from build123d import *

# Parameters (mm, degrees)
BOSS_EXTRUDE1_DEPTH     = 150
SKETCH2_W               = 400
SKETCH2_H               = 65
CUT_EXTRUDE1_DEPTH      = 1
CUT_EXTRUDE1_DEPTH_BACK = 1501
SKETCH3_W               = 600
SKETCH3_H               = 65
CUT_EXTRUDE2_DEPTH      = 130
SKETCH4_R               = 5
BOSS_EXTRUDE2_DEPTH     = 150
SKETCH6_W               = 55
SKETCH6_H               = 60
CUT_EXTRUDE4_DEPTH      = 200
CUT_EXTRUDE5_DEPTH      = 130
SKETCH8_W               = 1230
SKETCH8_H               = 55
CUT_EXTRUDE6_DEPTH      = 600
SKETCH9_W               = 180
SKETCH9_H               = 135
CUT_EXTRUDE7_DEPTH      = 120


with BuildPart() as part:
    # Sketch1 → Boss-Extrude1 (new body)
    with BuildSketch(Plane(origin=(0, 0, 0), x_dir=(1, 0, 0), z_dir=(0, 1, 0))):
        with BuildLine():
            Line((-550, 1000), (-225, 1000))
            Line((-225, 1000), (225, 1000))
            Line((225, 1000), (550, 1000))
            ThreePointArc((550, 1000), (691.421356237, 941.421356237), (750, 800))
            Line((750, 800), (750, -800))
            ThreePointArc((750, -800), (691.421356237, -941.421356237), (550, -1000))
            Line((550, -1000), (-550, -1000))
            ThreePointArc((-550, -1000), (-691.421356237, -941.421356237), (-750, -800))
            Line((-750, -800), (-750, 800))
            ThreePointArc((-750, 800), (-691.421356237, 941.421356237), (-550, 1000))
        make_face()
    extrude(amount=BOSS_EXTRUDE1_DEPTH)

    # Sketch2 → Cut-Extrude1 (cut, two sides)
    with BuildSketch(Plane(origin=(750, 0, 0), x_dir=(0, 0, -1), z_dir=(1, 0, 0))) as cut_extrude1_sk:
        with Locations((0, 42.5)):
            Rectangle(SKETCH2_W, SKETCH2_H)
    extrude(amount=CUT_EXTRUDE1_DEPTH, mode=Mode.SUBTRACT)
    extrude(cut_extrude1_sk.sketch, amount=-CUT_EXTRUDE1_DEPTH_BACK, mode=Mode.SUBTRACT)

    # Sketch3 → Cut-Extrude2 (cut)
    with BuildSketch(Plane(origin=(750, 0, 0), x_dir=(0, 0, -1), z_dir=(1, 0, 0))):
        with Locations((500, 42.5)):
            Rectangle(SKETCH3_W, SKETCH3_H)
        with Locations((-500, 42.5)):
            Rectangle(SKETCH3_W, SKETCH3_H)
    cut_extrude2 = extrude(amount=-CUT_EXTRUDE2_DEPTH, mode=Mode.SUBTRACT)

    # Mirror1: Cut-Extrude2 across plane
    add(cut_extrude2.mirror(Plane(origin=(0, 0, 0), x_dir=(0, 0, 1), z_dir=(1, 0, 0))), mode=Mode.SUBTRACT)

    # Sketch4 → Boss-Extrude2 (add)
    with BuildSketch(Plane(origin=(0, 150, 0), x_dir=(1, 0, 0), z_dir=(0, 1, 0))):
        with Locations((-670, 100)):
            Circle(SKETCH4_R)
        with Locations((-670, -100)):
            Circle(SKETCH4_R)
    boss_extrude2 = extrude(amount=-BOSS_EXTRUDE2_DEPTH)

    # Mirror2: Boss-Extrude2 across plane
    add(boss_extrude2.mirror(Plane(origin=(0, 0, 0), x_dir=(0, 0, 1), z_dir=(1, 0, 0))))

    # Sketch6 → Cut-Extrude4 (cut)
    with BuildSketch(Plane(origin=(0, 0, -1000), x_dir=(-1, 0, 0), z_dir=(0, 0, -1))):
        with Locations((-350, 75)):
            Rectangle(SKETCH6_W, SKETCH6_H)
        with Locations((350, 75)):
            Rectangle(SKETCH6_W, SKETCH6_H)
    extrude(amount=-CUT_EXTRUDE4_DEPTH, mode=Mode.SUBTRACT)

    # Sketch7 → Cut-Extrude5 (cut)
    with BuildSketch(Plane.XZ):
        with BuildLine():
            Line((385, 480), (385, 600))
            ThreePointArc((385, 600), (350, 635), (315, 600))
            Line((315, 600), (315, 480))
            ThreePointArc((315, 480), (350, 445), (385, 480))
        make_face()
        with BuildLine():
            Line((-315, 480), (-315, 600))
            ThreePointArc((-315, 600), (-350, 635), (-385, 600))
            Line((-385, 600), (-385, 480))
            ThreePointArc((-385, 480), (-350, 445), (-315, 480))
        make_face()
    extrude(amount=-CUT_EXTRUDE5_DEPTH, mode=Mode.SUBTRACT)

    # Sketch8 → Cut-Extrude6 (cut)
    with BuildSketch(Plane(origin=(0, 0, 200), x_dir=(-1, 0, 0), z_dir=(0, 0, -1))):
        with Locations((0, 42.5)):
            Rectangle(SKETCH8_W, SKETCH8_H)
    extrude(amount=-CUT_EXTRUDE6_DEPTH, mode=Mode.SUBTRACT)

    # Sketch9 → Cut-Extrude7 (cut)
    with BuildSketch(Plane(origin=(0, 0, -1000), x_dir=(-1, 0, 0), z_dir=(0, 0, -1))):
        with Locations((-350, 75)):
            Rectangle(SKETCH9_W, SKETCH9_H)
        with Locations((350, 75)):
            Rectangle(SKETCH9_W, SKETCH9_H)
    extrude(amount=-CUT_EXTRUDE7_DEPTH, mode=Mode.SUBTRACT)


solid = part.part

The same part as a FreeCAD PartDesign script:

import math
import FreeCAD as App
import Part
import Sketcher

V = App.Vector


def add_polygon(sketch, points):
    """Adds a closed chain of lines whose ends are joined by coincident constraints."""
    first, n = sketch.GeometryCount, len(points)
    for a, b in zip(points, points[1:] + points[:1]):
        sketch.addGeometry(Part.LineSegment(App.Vector(*a, 0), App.Vector(*b, 0)), False)
    for i in range(n):
        sketch.addConstraint(Sketcher.Constraint("Coincident", first + i, 2, first + (i + 1) % n, 1))

doc = App.newDocument("Part")
body = doc.addObject("PartDesign::Body", "Body")

# Sketch on XZ plane
sketch1 = body.newObject("Sketcher::SketchObject", "Sketch")
sketch1.AttachmentSupport = (doc.getObject("XZ_Plane"), [""])
sketch1.MapMode = "FlatFace"
sketch1.addGeometry(Part.LineSegment(V(550, -1000, 0), V(-550, -1000, 0)), False)
sketch1.addGeometry(Part.ArcOfCircle(Part.Circle(V(-550, -800, 0), V(0, 0, 1), 200), math.radians(-180), math.radians(-90)), False)
sketch1.addGeometry(Part.LineSegment(V(-750, -800, 0), V(-750, 800, 0)), False)
sketch1.addGeometry(Part.ArcOfCircle(Part.Circle(V(-550, 800, 0), V(0, 0, 1), 200), math.radians(90), math.radians(180)), False)
sketch1.addGeometry(Part.LineSegment(V(-550, 1000, 0), V(550, 1000, 0)), False)
sketch1.addGeometry(Part.ArcOfCircle(Part.Circle(V(550, 800, 0), V(0, 0, 1), 200), math.radians(0), math.radians(90)), False)
sketch1.addGeometry(Part.LineSegment(V(750, 800, 0), V(750, -800, 0)), False)
sketch1.addGeometry(Part.ArcOfCircle(Part.Circle(V(550, -800, 0), V(0, 0, 1), 200), math.radians(-90), math.radians(0)), False)
sketch1.addConstraint(Sketcher.Constraint("Tangent", 0, 2, 1, 2))
sketch1.addConstraint(Sketcher.Constraint("Tangent", 1, 1, 2, 1))
sketch1.addConstraint(Sketcher.Constraint("Tangent", 2, 2, 3, 2))
sketch1.addConstraint(Sketcher.Constraint("Tangent", 3, 1, 4, 1))
sketch1.addConstraint(Sketcher.Constraint("Tangent", 4, 2, 5, 2))
sketch1.addConstraint(Sketcher.Constraint("Tangent", 5, 1, 6, 1))
sketch1.addConstraint(Sketcher.Constraint("Tangent", 6, 2, 7, 2))
sketch1.addConstraint(Sketcher.Constraint("Tangent", 7, 1, 0, 1))
sketch1.addConstraint(Sketcher.Constraint("Horizontal", 0))
sketch1.addConstraint(Sketcher.Constraint("Vertical", 2))
sketch1.addConstraint(Sketcher.Constraint("Horizontal", 4))
sketch1.addConstraint(Sketcher.Constraint("Vertical", 6))
sketch1.addConstraint(Sketcher.Constraint("Equal", 1, 3))
sketch1.addConstraint(Sketcher.Constraint("Equal", 3, 5))
sketch1.addConstraint(Sketcher.Constraint("Equal", 5, 7))
sketch1.addConstraint(Sketcher.Constraint("Symmetric", 1, 3, 5, 3, -1, 1))
sketch1.addConstraint(Sketcher.Constraint("Radius", 1, 200.0))
sketch1.addConstraint(Sketcher.Constraint("DistanceX", 0, 2, 0, 1, 1100.0))
sketch1.addConstraint(Sketcher.Constraint("DistanceY", 2, 1, 2, 2, 1600.0))
pad1 = body.newObject("PartDesign::Pad", "Pad")
pad1.Profile = sketch1
pad1.Length = 150
pad1.Reversed = True

# Sketch on YZ plane
sketch2 = body.newObject("Sketcher::SketchObject", "Sketch001")
sketch2.AttachmentSupport = (doc.getObject("YZ_Plane"), [""])
sketch2.MapMode = "FlatFace"
sketch2.AttachmentOffset = App.Placement(V(0, 0, 750), App.Rotation())
add_polygon(sketch2, [(75, 200), (10, 200), (10, -200), (75, -200)])  # lines 0-3
sketch2.addConstraint(Sketcher.Constraint("Horizontal", 0))
sketch2.addConstraint(Sketcher.Constraint("Vertical", 1))
sketch2.addConstraint(Sketcher.Constraint("Horizontal", 2))
sketch2.addConstraint(Sketcher.Constraint("Vertical", 3))
sketch2.addConstraint(Sketcher.Constraint("DistanceX", 0, 2, 0, 1, 65.0))
sketch2.addConstraint(Sketcher.Constraint("DistanceY", 1, 2, 1, 1, 400.0))
sketch2.addConstraint(Sketcher.Constraint("DistanceX", -1, 1, 0, 2, 10.0))
sketch2.addConstraint(Sketcher.Constraint("DistanceY", -1, 1, 0, 2, 200.0))
pocket1 = body.newObject("PartDesign::Pocket", "Pocket")
pocket1.Profile = sketch2
pocket1.Type = "ThroughAll"
pocket1.Midplane = True

# Sketch on YZ plane
sketch3 = body.newObject("Sketcher::SketchObject", "Sketch002")
sketch3.AttachmentSupport = (doc.getObject("YZ_Plane"), [""])
sketch3.MapMode = "FlatFace"
sketch3.AttachmentOffset = App.Placement(V(0, 0, 750), App.Rotation())
add_polygon(sketch3, [(75, -200), (10, -200), (10, -800), (75, -800)])  # lines 0-3
add_polygon(sketch3, [(75, 800), (10, 800), (10, 200), (75, 200)])  # lines 4-7
sketch3.addConstraint(Sketcher.Constraint("Horizontal", 0))
sketch3.addConstraint(Sketcher.Constraint("Vertical", 1))
sketch3.addConstraint(Sketcher.Constraint("Horizontal", 2))
sketch3.addConstraint(Sketcher.Constraint("Vertical", 3))
sketch3.addConstraint(Sketcher.Constraint("Horizontal", 4))
sketch3.addConstraint(Sketcher.Constraint("Vertical", 5))
sketch3.addConstraint(Sketcher.Constraint("Horizontal", 6))
sketch3.addConstraint(Sketcher.Constraint("Vertical", 7))
sketch3.addConstraint(Sketcher.Constraint("Symmetric", 1, 2, 4, 2, -1))
sketch3.addConstraint(Sketcher.Constraint("Symmetric", 3, 2, 6, 2, -1))
sketch3.addConstraint(Sketcher.Constraint("DistanceX", 0, 2, 0, 1, 65.0))
sketch3.addConstraint(Sketcher.Constraint("DistanceY", 1, 2, 1, 1, 600.0))
sketch3.addConstraint(Sketcher.Constraint("DistanceX", -1, 1, 0, 2, 10.0))
sketch3.addConstraint(Sketcher.Constraint("DistanceY", 0, 2, -1, 1, 200.0))
pocket2 = body.newObject("PartDesign::Pocket", "Pocket001")
pocket2.Profile = sketch3
pocket2.Length = 130
doc.recompute()

mirrored = body.newObject("PartDesign::Mirrored", "Mirrored")
mirrored.Originals = [pocket2]
mirrored.MirrorPlane = (doc.getObject("YZ_Plane"), [""])
body.Tip = mirrored

# Sketch on XZ plane
sketch4 = body.newObject("Sketcher::SketchObject", "Sketch003")
sketch4.AttachmentSupport = (doc.getObject("XZ_Plane"), [""])
sketch4.MapMode = "FlatFace"
sketch4.AttachmentOffset = App.Placement(V(0, 0, -150), App.Rotation())
sketch4.addGeometry(Part.Circle(V(-670, -100, 0), V(0, 0, 1), 5), False)
sketch4.addGeometry(Part.Circle(V(-670, 100, 0), V(0, 0, 1), 5), False)
sketch4.addConstraint(Sketcher.Constraint("Equal", 0, 1))
sketch4.addConstraint(Sketcher.Constraint("Symmetric", 0, 3, 1, 3, -1))
sketch4.addConstraint(Sketcher.Constraint("Diameter", 0, 10.0))
sketch4.addConstraint(Sketcher.Constraint("DistanceX", 0, 3, -1, 1, 670.0))
sketch4.addConstraint(Sketcher.Constraint("DistanceY", 0, 3, -1, 1, 100.0))
pad2 = body.newObject("PartDesign::Pad", "Pad001")
pad2.Profile = sketch4
pad2.Length = 150
doc.recompute()

mirrored2 = body.newObject("PartDesign::Mirrored", "Mirrored001")
mirrored2.Originals = [pad2]
mirrored2.MirrorPlane = (doc.getObject("YZ_Plane"), [""])
body.Tip = mirrored2

# Sketch on XY plane
sketch5 = body.newObject("Sketcher::SketchObject", "Sketch004")
sketch5.AttachmentSupport = (doc.getObject("XY_Plane"), [""])
sketch5.MapMode = "FlatFace"
sketch5.AttachmentOffset = App.Placement(V(0, 0, -1000), App.Rotation())
add_polygon(sketch5, [(378, 105), (378, 45), (322, 45), (322, 105)])  # lines 0-3
add_polygon(sketch5, [(-322, 105), (-322, 45), (-378, 45), (-378, 105)])  # lines 4-7
sketch5.addConstraint(Sketcher.Constraint("Vertical", 0))
sketch5.addConstraint(Sketcher.Constraint("Horizontal", 1))
sketch5.addConstraint(Sketcher.Constraint("Vertical", 2))
sketch5.addConstraint(Sketcher.Constraint("Horizontal", 3))
sketch5.addConstraint(Sketcher.Constraint("Vertical", 4))
sketch5.addConstraint(Sketcher.Constraint("Horizontal", 5))
sketch5.addConstraint(Sketcher.Constraint("Vertical", 6))
sketch5.addConstraint(Sketcher.Constraint("Horizontal", 7))
sketch5.addConstraint(Sketcher.Constraint("Symmetric", 1, 2, 4, 2, -2))
sketch5.addConstraint(Sketcher.Constraint("Symmetric", 3, 2, 6, 2, -2))
sketch5.addConstraint(Sketcher.Constraint("DistanceX", 1, 2, 1, 1, 55.0))
sketch5.addConstraint(Sketcher.Constraint("DistanceY", 0, 2, 0, 1, 60.0))
sketch5.addConstraint(Sketcher.Constraint("DistanceY", -1, 1, 0, 2, 45.0))
sketch5.addConstraint(Sketcher.Constraint("DistanceX", 4, 2, 1, 2, 645.0))
pocket3 = body.newObject("PartDesign::Pocket", "Pocket002")
pocket3.Profile = sketch5
pocket3.Length = 200
pocket3.Reversed = True

# Sketch on XZ plane
sketch6 = body.newObject("Sketcher::SketchObject", "Sketch005")
sketch6.AttachmentSupport = (doc.getObject("XZ_Plane"), [""])
sketch6.MapMode = "FlatFace"
sketch6.addGeometry(Part.LineSegment(V(385, 480, 0), V(385, 600, 0)), False)
sketch6.addGeometry(Part.ArcOfCircle(Part.Circle(V(350, 600, 0), V(0, 0, 1), 35), math.radians(0), math.radians(180)), False)
sketch6.addGeometry(Part.LineSegment(V(315, 600, 0), V(315, 480, 0)), False)
sketch6.addGeometry(Part.ArcOfCircle(Part.Circle(V(350, 480, 0), V(0, 0, 1), 35), math.radians(180), math.radians(360)), False)
sketch6.addGeometry(Part.LineSegment(V(-315, 480, 0), V(-315, 600, 0)), False)
sketch6.addGeometry(Part.ArcOfCircle(Part.Circle(V(-350, 600, 0), V(0, 0, 1), 35), math.radians(0), math.radians(180)), False)
sketch6.addGeometry(Part.LineSegment(V(-385, 600, 0), V(-385, 480, 0)), False)
sketch6.addGeometry(Part.ArcOfCircle(Part.Circle(V(-350, 480, 0), V(0, 0, 1), 35), math.radians(180), math.radians(360)), False)
sketch6.addConstraint(Sketcher.Constraint("Tangent", 0, 2, 1, 1))
sketch6.addConstraint(Sketcher.Constraint("Tangent", 1, 2, 2, 1))
sketch6.addConstraint(Sketcher.Constraint("Tangent", 2, 2, 3, 1))
sketch6.addConstraint(Sketcher.Constraint("Tangent", 3, 2, 0, 1))
sketch6.addConstraint(Sketcher.Constraint("Tangent", 4, 2, 5, 1))
sketch6.addConstraint(Sketcher.Constraint("Tangent", 5, 2, 6, 1))
sketch6.addConstraint(Sketcher.Constraint("Tangent", 6, 2, 7, 1))
sketch6.addConstraint(Sketcher.Constraint("Tangent", 7, 2, 4, 1))
sketch6.addConstraint(Sketcher.Constraint("Vertical", 0))
sketch6.addConstraint(Sketcher.Constraint("Vertical", 2))
sketch6.addConstraint(Sketcher.Constraint("Vertical", 4))
sketch6.addConstraint(Sketcher.Constraint("Vertical", 6))
sketch6.addConstraint(Sketcher.Constraint("Equal", 3, 5))
sketch6.addConstraint(Sketcher.Constraint("Symmetric", 1, 3, 5, 3, -2))
sketch6.addConstraint(Sketcher.Constraint("Horizontal", 3, 3, 7, 3))
sketch6.addConstraint(Sketcher.Constraint("Radius", 1, 35.0))
sketch6.addConstraint(Sketcher.Constraint("DistanceY", 0, 1, 0, 2, 120.0))
sketch6.addConstraint(Sketcher.Constraint("DistanceX", -1, 1, 1, 3, 350.0))
sketch6.addConstraint(Sketcher.Constraint("DistanceY", -1, 1, 1, 3, 600.0))
pocket4 = body.newObject("PartDesign::Pocket", "Pocket003")
pocket4.Profile = sketch6
pocket4.Length = 130

# Sketch on XY plane
sketch7 = body.newObject("Sketcher::SketchObject", "Sketch006")
sketch7.AttachmentSupport = (doc.getObject("XY_Plane"), [""])
sketch7.MapMode = "FlatFace"
sketch7.AttachmentOffset = App.Placement(V(0, 0, 200), App.Rotation())
add_polygon(sketch7, [(615, 70), (615, 15), (-615, 15), (-615, 70)])  # lines 0-3
sketch7.addConstraint(Sketcher.Constraint("Vertical", 0))
sketch7.addConstraint(Sketcher.Constraint("Horizontal", 1))
sketch7.addConstraint(Sketcher.Constraint("Vertical", 2))
sketch7.addConstraint(Sketcher.Constraint("Horizontal", 3))
sketch7.addConstraint(Sketcher.Constraint("DistanceX", 1, 2, 1, 1, 1230.0))
sketch7.addConstraint(Sketcher.Constraint("DistanceY", 0, 2, 0, 1, 55.0))
sketch7.addConstraint(Sketcher.Constraint("DistanceX", -1, 1, 0, 2, 615.0))
sketch7.addConstraint(Sketcher.Constraint("DistanceY", -1, 1, 0, 2, 15.0))
pocket5 = body.newObject("PartDesign::Pocket", "Pocket004")
pocket5.Profile = sketch7
pocket5.Length = 600
pocket5.Reversed = True

# Sketch on XY plane
sketch8 = body.newObject("Sketcher::SketchObject", "Sketch007")
sketch8.AttachmentSupport = (doc.getObject("XY_Plane"), [""])
sketch8.MapMode = "FlatFace"
sketch8.AttachmentOffset = App.Placement(V(0, 0, -1000), App.Rotation())
add_polygon(sketch8, [(440, 142), (440, 8), (260, 8), (260, 142)])  # lines 0-3
add_polygon(sketch8, [(-260, 142), (-260, 8), (-440, 8), (-440, 142)])  # lines 4-7
sketch8.addConstraint(Sketcher.Constraint("Vertical", 0))
sketch8.addConstraint(Sketcher.Constraint("Horizontal", 1))
sketch8.addConstraint(Sketcher.Constraint("Vertical", 2))
sketch8.addConstraint(Sketcher.Constraint("Horizontal", 3))
sketch8.addConstraint(Sketcher.Constraint("Vertical", 4))
sketch8.addConstraint(Sketcher.Constraint("Horizontal", 5))
sketch8.addConstraint(Sketcher.Constraint("Vertical", 6))
sketch8.addConstraint(Sketcher.Constraint("Horizontal", 7))
sketch8.addConstraint(Sketcher.Constraint("Symmetric", 1, 2, 4, 2, -2))
sketch8.addConstraint(Sketcher.Constraint("Symmetric", 3, 2, 6, 2, -2))
sketch8.addConstraint(Sketcher.Constraint("DistanceX", 1, 2, 1, 1, 180.0))
sketch8.addConstraint(Sketcher.Constraint("DistanceY", 0, 2, 0, 1, 135.0))
sketch8.addConstraint(Sketcher.Constraint("DistanceX", -1, 1, 0, 2, 440.0))
sketch8.addConstraint(Sketcher.Constraint("DistanceY", -1, 1, 0, 2, 7.5))
pocket6 = body.newObject("PartDesign::Pocket", "Pocket005")
pocket6.Profile = sketch8
pocket6.Length = 120
pocket6.Reversed = True

doc.recompute()
